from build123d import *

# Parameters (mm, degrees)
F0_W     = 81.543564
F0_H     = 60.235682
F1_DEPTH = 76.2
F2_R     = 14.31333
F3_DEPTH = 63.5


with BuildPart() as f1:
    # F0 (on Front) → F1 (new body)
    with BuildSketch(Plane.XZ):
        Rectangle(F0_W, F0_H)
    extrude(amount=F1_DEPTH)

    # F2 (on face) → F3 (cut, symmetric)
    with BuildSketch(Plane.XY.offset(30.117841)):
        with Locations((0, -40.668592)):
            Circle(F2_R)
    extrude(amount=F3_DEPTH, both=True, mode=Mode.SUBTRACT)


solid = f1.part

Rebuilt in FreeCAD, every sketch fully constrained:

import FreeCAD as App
import Part
import Sketcher

V = App.Vector
Q = App.Units.Quantity


def add_polygon(sketch, points):
    """Adds a closed chain of lines whose ends are joined by coincident constraints."""
    first, n = sketch.GeometryCount, len(points)
    for a, b in zip(points, points[1:] + points[:1]):
        sketch.addGeometry(Part.LineSegment(App.Vector(*a, 0), App.Vector(*b, 0)), False)
    for i in range(n):
        sketch.addConstraint(Sketcher.Constraint("Coincident", first + i, 2, first + (i + 1) % n, 1))

doc = App.newDocument("Part")
body = doc.addObject("PartDesign::Body", "Body")

sketch1 = body.newObject("Sketcher::SketchObject", "Sketch")
sketch1.AttachmentSupport = (doc.getObject("XZ_Plane"), [""])
sketch1.MapMode = "FlatFace"
add_polygon(sketch1, [(-41, 30), (-41, -30), (41, -30), (41, 30)])
sketch1.addConstraint([
    Sketcher.Constraint("Vertical", 0),
    Sketcher.Constraint("Horizontal", 1),
    Sketcher.Constraint("Vertical", 2),
    Sketcher.Constraint("Horizontal", 3),
    Sketcher.Constraint("Symmetric", 0, 2, 2, 2, -1, 1),
    Sketcher.Constraint("DistanceY", 0, 2, 0, 1, 60.235682),
    Sketcher.Constraint("DistanceX", 1, 1, 1, 2, 81.543564),
])
pad1 = body.newObject("PartDesign::Pad", "Pad")
pad1.Profile = sketch1
pad1.Length = Q("3 in")

sketch2 = body.newObject("Sketcher::SketchObject", "Sketch001")
sketch2.AttachmentSupport = (doc.getObject("XY_Plane"), [""])
sketch2.MapMode = "FlatFace"
sketch2.AttachmentOffset = App.Placement(V(0, 0, 30.117841), App.Rotation())
sketch2.addGeometry(Part.Circle(V(0, -41, 0), V(0, 0, 1), 14), False)
sketch2.addConstraint([
    Sketcher.Constraint("PointOnObject", 0, 3, -2),
    Sketcher.Constraint("Diameter", 0, 28.62666),
    Sketcher.Constraint("DistanceY", 0, 3, -1, 1, 40.668592),
])
pocket1 = body.newObject("PartDesign::Pocket", "Pocket")
pocket1.Profile = sketch2
pocket1.Length = Q("5 in")
pocket1.Midplane = True

doc.recompute()
